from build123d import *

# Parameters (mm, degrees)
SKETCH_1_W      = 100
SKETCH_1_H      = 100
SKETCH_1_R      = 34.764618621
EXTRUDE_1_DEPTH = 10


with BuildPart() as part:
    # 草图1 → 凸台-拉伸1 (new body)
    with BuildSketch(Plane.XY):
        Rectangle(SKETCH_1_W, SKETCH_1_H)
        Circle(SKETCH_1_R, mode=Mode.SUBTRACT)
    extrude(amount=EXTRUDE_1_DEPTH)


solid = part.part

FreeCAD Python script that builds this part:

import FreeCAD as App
import Part
import Sketcher

doc = App.newDocument("Part")
body = doc.addObject("PartDesign::Body", "Body")

# Sketch on XY plane
sketch1 = body.newObject("Sketcher::SketchObject", "Sketch")
sketch1.AttachmentSupport = (doc.getObject("XY_Plane"), [""])
sketch1.MapMode = "FlatFace"
sketch1.addGeometry([
    Part.LineSegment(App.Vector(-50, 50, 0), App.Vector(-50, -50, 0)),  # 0
    Part.LineSegment(App.Vector(-50, -50, 0), App.Vector(50, -50, 0)),  # 1
    Part.LineSegment(App.Vector(50, -50, 0), App.Vector(50, 50, 0)),  # 2
    Part.LineSegment(App.Vector(50, 50, 0), App.Vector(-50, 50, 0)),  # 3
    Part.Circle(App.Vector(0, 0, 0), App.Vector(0, 0, 1), 34.764619),  # 4
], False)
sketch1.addConstraint([
    Sketcher.Constraint("Coincident", 0, 2, 1, 1),
    Sketcher.Constraint("Coincident", 1, 2, 2, 1),
    Sketcher.Constraint("Coincident", 2, 2, 3, 1),
    Sketcher.Constraint("Coincident", 3, 2, 0, 1),
    Sketcher.Constraint("Vertical", 0),
    Sketcher.Constraint("Horizontal", 1),
    Sketcher.Constraint("Vertical", 2),
    Sketcher.Constraint("Horizontal", 3),
    Sketcher.Constraint("Coincident", 4, 3, -1, 1),
    Sketcher.Constraint("Symmetric", 0, 2, 2, 2, -1, 1),
    Sketcher.Constraint("Equal", 3, 0),
    Sketcher.Constraint("DistanceX", 1, 1, 1, 2, 100.0),
    Sketcher.Constraint("Diameter", 4, 69.529237),
])
pad1 = body.newObject("PartDesign::Pad", "Pad")
pad1.Profile = sketch1
pad1.Length = 10

doc.recompute()
